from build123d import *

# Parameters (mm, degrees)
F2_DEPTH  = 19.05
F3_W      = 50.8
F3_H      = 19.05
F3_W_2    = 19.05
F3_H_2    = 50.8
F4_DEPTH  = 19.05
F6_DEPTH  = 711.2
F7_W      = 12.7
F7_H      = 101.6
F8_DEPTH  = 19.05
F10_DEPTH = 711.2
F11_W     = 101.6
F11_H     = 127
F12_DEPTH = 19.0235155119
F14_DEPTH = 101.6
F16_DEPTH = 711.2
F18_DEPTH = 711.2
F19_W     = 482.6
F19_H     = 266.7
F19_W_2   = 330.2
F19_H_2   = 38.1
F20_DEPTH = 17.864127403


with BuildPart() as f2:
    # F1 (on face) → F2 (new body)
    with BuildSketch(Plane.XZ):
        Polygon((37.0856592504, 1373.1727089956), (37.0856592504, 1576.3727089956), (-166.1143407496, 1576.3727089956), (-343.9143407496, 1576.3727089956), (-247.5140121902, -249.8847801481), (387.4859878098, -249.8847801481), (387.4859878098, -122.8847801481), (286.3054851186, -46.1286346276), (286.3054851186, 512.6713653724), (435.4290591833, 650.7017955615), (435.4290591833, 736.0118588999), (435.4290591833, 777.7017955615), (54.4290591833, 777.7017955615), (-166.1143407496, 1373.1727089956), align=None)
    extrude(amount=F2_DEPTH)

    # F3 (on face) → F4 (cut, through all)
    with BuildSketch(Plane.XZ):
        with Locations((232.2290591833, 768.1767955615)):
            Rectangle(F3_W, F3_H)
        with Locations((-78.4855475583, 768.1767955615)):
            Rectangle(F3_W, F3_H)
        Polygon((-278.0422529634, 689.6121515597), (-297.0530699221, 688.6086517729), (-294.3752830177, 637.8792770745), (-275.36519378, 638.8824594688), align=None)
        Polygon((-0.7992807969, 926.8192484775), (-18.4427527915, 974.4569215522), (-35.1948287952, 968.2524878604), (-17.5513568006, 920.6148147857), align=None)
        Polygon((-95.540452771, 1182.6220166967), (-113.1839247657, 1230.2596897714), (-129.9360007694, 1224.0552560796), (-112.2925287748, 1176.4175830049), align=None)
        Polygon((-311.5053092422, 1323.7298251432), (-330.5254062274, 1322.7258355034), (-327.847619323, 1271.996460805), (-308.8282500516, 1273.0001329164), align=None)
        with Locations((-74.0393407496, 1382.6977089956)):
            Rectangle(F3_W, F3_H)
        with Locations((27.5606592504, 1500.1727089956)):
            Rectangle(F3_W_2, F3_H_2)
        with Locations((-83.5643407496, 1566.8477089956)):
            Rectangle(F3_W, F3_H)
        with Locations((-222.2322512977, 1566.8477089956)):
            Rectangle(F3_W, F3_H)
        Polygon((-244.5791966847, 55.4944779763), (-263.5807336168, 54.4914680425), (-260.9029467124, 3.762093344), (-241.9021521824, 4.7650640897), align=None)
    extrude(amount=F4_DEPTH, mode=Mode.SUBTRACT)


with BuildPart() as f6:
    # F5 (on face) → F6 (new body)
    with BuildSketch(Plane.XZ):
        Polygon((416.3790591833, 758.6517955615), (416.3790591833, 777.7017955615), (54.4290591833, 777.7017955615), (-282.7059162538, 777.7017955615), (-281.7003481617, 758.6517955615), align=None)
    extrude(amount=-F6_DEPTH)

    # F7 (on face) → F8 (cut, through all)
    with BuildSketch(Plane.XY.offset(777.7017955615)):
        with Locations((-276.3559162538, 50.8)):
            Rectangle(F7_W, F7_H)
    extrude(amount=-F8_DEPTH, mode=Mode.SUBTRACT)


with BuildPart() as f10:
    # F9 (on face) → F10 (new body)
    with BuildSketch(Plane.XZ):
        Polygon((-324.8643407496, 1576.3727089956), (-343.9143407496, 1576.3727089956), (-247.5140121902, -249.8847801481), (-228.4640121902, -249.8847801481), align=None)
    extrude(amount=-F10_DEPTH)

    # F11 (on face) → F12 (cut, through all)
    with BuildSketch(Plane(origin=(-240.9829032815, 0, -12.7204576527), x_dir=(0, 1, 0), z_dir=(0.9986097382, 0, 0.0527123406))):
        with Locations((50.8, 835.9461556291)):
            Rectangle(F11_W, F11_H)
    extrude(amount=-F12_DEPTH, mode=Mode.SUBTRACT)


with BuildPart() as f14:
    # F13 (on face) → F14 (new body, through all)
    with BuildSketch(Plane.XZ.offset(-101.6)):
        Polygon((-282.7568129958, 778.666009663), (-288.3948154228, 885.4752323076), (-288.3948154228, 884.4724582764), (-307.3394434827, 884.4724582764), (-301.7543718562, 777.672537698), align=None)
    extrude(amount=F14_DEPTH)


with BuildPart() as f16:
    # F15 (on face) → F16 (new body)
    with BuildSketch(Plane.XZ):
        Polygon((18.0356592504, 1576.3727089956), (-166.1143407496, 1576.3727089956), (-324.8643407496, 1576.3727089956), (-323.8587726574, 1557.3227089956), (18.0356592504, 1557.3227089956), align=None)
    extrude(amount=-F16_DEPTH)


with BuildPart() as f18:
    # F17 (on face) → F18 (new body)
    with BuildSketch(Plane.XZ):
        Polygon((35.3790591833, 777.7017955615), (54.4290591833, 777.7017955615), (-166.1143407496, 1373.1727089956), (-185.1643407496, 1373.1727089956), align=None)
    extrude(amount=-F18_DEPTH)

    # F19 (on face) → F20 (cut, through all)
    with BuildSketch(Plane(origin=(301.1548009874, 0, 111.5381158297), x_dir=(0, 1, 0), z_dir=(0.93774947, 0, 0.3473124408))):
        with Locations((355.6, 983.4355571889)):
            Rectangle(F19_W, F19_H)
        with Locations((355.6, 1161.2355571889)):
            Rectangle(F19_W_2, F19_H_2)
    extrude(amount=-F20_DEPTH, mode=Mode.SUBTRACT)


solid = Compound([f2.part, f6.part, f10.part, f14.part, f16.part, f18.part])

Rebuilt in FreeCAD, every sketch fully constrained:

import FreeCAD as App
import Part
import Sketcher
Q = App.Units.Quantity

doc = App.newDocument("Part")
body = doc.addObject("PartDesign::Body", "Body")

# Sketch on XZ plane
sketch1 = body.newObject("Sketcher::SketchObject", "Sketch")
sketch1.AttachmentSupport = (doc.getObject("XZ_Plane"), [""])
sketch1.MapMode = "FlatFace"
sketch1.addGeometry(Part.LineSegment(App.Vector(37, 1373, 0), App.Vector(37, 1576, 0)), False)
sketch1.addGeometry(Part.LineSegment(App.Vector(37, 1576, 0), App.Vector(-344, 1576, 0)), False)
sketch1.addGeometry(Part.LineSegment(App.Vector(-344, 1576, 0), App.Vector(-248, -250, 0)), False)
sketch1.addGeometry(Part.LineSegment(App.Vector(-248, -250, 0), App.Vector(387, -250, 0)), False)
sketch1.addGeometry(Part.LineSegment(App.Vector(387, -250, 0), App.Vector(387, -123, 0)), False)
sketch1.addGeometry(Part.LineSegment(App.Vector(387, -123, 0), App.Vector(286, -46, 0)), False)
sketch1.addGeometry(Part.LineSegment(App.Vector(286, -46, 0), App.Vector(286, 513, 0)), False)
sketch1.addGeometry(Part.LineSegment(App.Vector(286, 513, 0), App.Vector(435, 651, 0)), False)
sketch1.addGeometry(Part.LineSegment(App.Vector(435, 651, 0), App.Vector(435, 778, 0)), False)
sketch1.addGeometry(Part.LineSegment(App.Vector(435, 778, 0), App.Vector(54, 778, 0)), False)
sketch1.addGeometry(Part.LineSegment(App.Vector(54, 778, 0), App.Vector(-166, 1373, 0)), False)
sketch1.addGeometry(Part.LineSegment(App.Vector(-166, 1373, 0), App.Vector(37, 1373, 0)), False)
sketch1.addConstraint(Sketcher.Constraint("Coincident", 0, 2, 1, 1))
sketch1.addConstraint(Sketcher.Constraint("Coincident", 1, 2, 2, 1))
sketch1.addConstraint(Sketcher.Constraint("Coincident", 2, 2, 3, 1))
sketch1.addConstraint(Sketcher.Constraint("Coincident", 3, 2, 4, 1))
sketch1.addConstraint(Sketcher.Constraint("Coincident", 4, 2, 5, 1))
sketch1.addConstraint(Sketcher.Constraint("Coincident", 5, 2, 6, 1))
sketch1.addConstraint(Sketcher.Constraint("Coincident", 6, 2, 7, 1))
sketch1.addConstraint(Sketcher.Constraint("Coincident", 7, 2, 8, 1))
sketch1.addConstraint(Sketcher.Constraint("Coincident", 8, 2, 9, 1))
sketch1.addConstraint(Sketcher.Constraint("Coincident", 9, 2, 10, 1))
sketch1.addConstraint(Sketcher.Constraint("Coincident", 10, 2, 11, 1))
sketch1.addConstraint(Sketcher.Constraint("Coincident", 11, 2, 0, 1))
sketch1.addConstraint(Sketcher.Constraint("Vertical", 0))
sketch1.addConstraint(Sketcher.Constraint("Horizontal", 1))
sketch1.addConstraint(Sketcher.Constraint("Horizontal", 3))
sketch1.addConstraint(Sketcher.Constraint("Vertical", 4))
sketch1.addConstraint(Sketcher.Constraint("Vertical", 6))
sketch1.addConstraint(Sketcher.Constraint("Vertical", 8))
sketch1.addConstraint(Sketcher.Constraint("Horizontal", 9))
sketch1.addConstraint(Sketcher.Constraint("Horizontal", 11))
sketch1.addConstraint(Sketcher.Constraint("Equal", 1, 9))
sketch1.addConstraint(Sketcher.Constraint("Equal", 11, 0))
sketch1.addConstraint(Sketcher.Constraint("Equal", 4, 8))
sketch1.addConstraint(Sketcher.Constraint("DistanceX", 1, 2, 1, 1, Q("15 in")))
sketch1.addConstraint(Sketcher.Constraint("DistanceX", 3, 1, 3, 2, Q("25 in")))
sketch1.addConstraint(Sketcher.Constraint("DistanceX", 11, 1, 11, 2, Q("8 in")))
sketch1.addConstraint(Sketcher.Constraint("DistanceY", 4, 1, 4, 2, Q("5 in")))
sketch1.addConstraint(Sketcher.Constraint("DistanceY", 6, 1, 6, 2, Q("22 in")))
sketch1.addConstraint(Sketcher.Constraint("Distance", 2, Q("72 in")))
sketch1.addConstraint(Sketcher.Constraint("Distance", 5, Q("5 in")))
sketch1.addConstraint(Sketcher.Constraint("Distance", 7, Q("8 in")))
sketch1.addConstraint(Sketcher.Constraint("Distance", 10, Q("25 in")))
sketch1.addConstraint(Sketcher.Constraint("DistanceX", 0, 2, 7, 2, 398.3434))
sketch1.addConstraint(Sketcher.Constraint("DistanceX", -1, 1, 0, 2, 37.085659))
sketch1.addConstraint(Sketcher.Constraint("DistanceY", -1, 1, 0, 2, 1576.372709))
sketch1.addConstraint(Sketcher.Constraint("DistanceY", 2, 2, -1, 1, 249.88478))
pad1 = body.newObject("PartDesign::Pad", "Pad")
pad1.Profile = sketch1
pad1.Length = Q("0.75 in")

# Sketch on XZ plane
sketch2 = body.newObject("Sketcher::SketchObject", "Sketch001")
sketch2.AttachmentSupport = (doc.getObject("XZ_Plane"), [""])
sketch2.MapMode = "FlatFace"
sketch2.addGeometry(Part.LineSegment(App.Vector(207, 778, 0), App.Vector(207, 759, 0)), False)
sketch2.addGeometry(Part.LineSegment(App.Vector(207, 759, 0), App.Vector(258, 759, 0)), False)
sketch2.addGeometry(Part.LineSegment(App.Vector(258, 759, 0), App.Vector(258, 778, 0)), False)
sketch2.addGeometry(Part.LineSegment(App.Vector(258, 778, 0), App.Vector(207, 778, 0)), False)
sketch2.addGeometry(Part.LineSegment(App.Vector(-104, 778, 0), App.Vector(-104, 759, 0)), False)
sketch2.addGeometry(Part.LineSegment(App.Vector(-104, 759, 0), App.Vector(-53, 759, 0)), False)
sketch2.addGeometry(Part.LineSegment(App.Vector(-53, 759, 0), App.Vector(-53, 778, 0)), False)
sketch2.addGeometry(Part.LineSegment(App.Vector(-53, 778, 0), App.Vector(-104, 778, 0)), False)
sketch2.addGeometry(Part.LineSegment(App.Vector(-278, 690, 0), App.Vector(-297, 689, 0)), False)
sketch2.addGeometry(Part.LineSegment(App.Vector(-297, 689, 0), App.Vector(-294, 638, 0)), False)
sketch2.addGeometry(Part.LineSegment(App.Vector(-294, 638, 0), App.Vector(-275, 639, 0)), False)
sketch2.addGeometry(Part.LineSegment(App.Vector(-275, 639, 0), App.Vector(-278, 690, 0)), False)
sketch2.addGeometry(Part.LineSegment(App.Vector(-1, 927, 0), App.Vector(-18, 974, 0)), False)
sketch2.addGeometry(Part.LineSegment(App.Vector(-18, 974, 0), App.Vector(-35, 968, 0)), False)
sketch2.addGeometry(Part.LineSegment(App.Vector(-35, 968, 0), App.Vector(-18, 921, 0)), False)
sketch2.addGeometry(Part.LineSegment(App.Vector(-18, 921, 0), App.Vector(-1, 927, 0)), False)
sketch2.addGeometry(Part.LineSegment(App.Vector(-96, 1183, 0), App.Vector(-113, 1230, 0)), False)
sketch2.addGeometry(Part.LineSegment(App.Vector(-113, 1230, 0), App.Vector(-130, 1224, 0)), False)
sketch2.addGeometry(Part.LineSegment(App.Vector(-130, 1224, 0), App.Vector(-112, 1176, 0)), False)
sketch2.addGeometry(Part.LineSegment(App.Vector(-112, 1176, 0), App.Vector(-96, 1183, 0)), False)
sketch2.addGeometry(Part.LineSegment(App.Vector(-312, 1324, 0), App.Vector(-331, 1323, 0)), False)
sketch2.addGeometry(Part.LineSegment(App.Vector(-331, 1323, 0), App.Vector(-328, 1272, 0)), False)
sketch2.addGeometry(Part.LineSegment(App.Vector(-328, 1272, 0), App.Vector(-309, 1273, 0)), False)
sketch2.addGeometry(Part.LineSegment(App.Vector(-309, 1273, 0), App.Vector(-312, 1324, 0)), False)
sketch2.addGeometry(Part.LineSegment(App.Vector(-99, 1392, 0), App.Vector(-99, 1373, 0)), False)
sketch2.addGeometry(Part.LineSegment(App.Vector(-99, 1373, 0), App.Vector(-49, 1373, 0)), False)
sketch2.addGeometry(Part.LineSegment(App.Vector(-49, 1373, 0), App.Vector(-49, 1392, 0)), False)
sketch2.addGeometry(Part.LineSegment(App.Vector(-49, 1392, 0), App.Vector(-99, 1392, 0)), False)
sketch2.addGeometry(Part.LineSegment(App.Vector(18, 1526, 0), App.Vector(18, 1475, 0)), False)
sketch2.addGeometry(Part.LineSegment(App.Vector(18, 1475, 0), App.Vector(37, 1475, 0)), False)
sketch2.addGeometry(Part.LineSegment(App.Vector(37, 1475, 0), App.Vector(37, 1526, 0)), False)
sketch2.addGeometry(Part.LineSegment(App.Vector(37, 1526, 0), App.Vector(18, 1526, 0)), False)
sketch2.addGeometry(Part.LineSegment(App.Vector(-109, 1576, 0), App.Vector(-109, 1557, 0)), False)
sketch2.addGeometry(Part.LineSegment(App.Vector(-109, 1557, 0), App.Vector(-58, 1557, 0)), False)
sketch2.addGeometry(Part.LineSegment(App.Vector(-58, 1557, 0), App.Vector(-58, 1576, 0)), False)
sketch2.addGeometry(Part.LineSegment(App.Vector(-58, 1576, 0), App.Vector(-109, 1576, 0)), False)
sketch2.addGeometry(Part.LineSegment(App.Vector(-248, 1576, 0), App.Vector(-248, 1557, 0)), False)
sketch2.addGeometry(Part.LineSegment(App.Vector(-248, 1557, 0), App.Vector(-197, 1557, 0)), False)
sketch2.addGeometry(Part.LineSegment(App.Vector(-197, 1557, 0), App.Vector(-197, 1576, 0)), False)
sketch2.addGeometry(Part.LineSegment(App.Vector(-197, 1576, 0), App.Vector(-248, 1576, 0)), False)
sketch2.addGeometry(Part.LineSegment(App.Vector(-245, 55, 0), App.Vector(-264, 54, 0)), False)
sketch2.addGeometry(Part.LineSegment(App.Vector(-264, 54, 0), App.Vector(-261, 4, 0)), False)
sketch2.addGeometry(Part.LineSegment(App.Vector(-261, 4, 0), App.Vector(-242, 5, 0)), False)
sketch2.addGeometry(Part.LineSegment(App.Vector(-242, 5, 0), App.Vector(-245, 55, 0)), False)
sketch2.addConstraint(Sketcher.Constraint("Coincident", 0, 2, 1, 1))
sketch2.addConstraint(Sketcher.Constraint("Coincident", 1, 2, 2, 1))
sketch2.addConstraint(Sketcher.Constraint("Coincident", 2, 2, 3, 1))
sketch2.addConstraint(Sketcher.Constraint("Coincident", 3, 2, 0, 1))
sketch2.addConstraint(Sketcher.Constraint("Coincident", 4, 2, 5, 1))
sketch2.addConstraint(Sketcher.Constraint("Coincident", 5, 2, 6, 1))
sketch2.addConstraint(Sketcher.Constraint("Coincident", 6, 2, 7, 1))
sketch2.addConstraint(Sketcher.Constraint("Coincident", 7, 2, 4, 1))
sketch2.addConstraint(Sketcher.Constraint("Coincident", 8, 2, 9, 1))
sketch2.addConstraint(Sketcher.Constraint("Coincident", 9, 2, 10, 1))
sketch2.addConstraint(Sketcher.Constraint("Coincident", 10, 2, 11, 1))
sketch2.addConstraint(Sketcher.Constraint("Coincident", 11, 2, 8, 1))
sketch2.addConstraint(Sketcher.Constraint("Coincident", 12, 2, 13, 1))
sketch2.addConstraint(Sketcher.Constraint("Coincident", 13, 2, 14, 1))
sketch2.addConstraint(Sketcher.Constraint("Coincident", 14, 2, 15, 1))
sketch2.addConstraint(Sketcher.Constraint("Coincident", 15, 2, 12, 1))
sketch2.addConstraint(Sketcher.Constraint("Coincident", 16, 2, 17, 1))
sketch2.addConstraint(Sketcher.Constraint("Coincident", 17, 2, 18, 1))
sketch2.addConstraint(Sketcher.Constraint("Coincident", 18, 2, 19, 1))
sketch2.addConstraint(Sketcher.Constraint("Coincident", 19, 2, 16, 1))
sketch2.addConstraint(Sketcher.Constraint("Coincident", 20, 2, 21, 1))
sketch2.addConstraint(Sketcher.Constraint("Coincident", 21, 2, 22, 1))
sketch2.addConstraint(Sketcher.Constraint("Coincident", 22, 2, 23, 1))
sketch2.addConstraint(Sketcher.Constraint("Coincident", 23, 2, 20, 1))
sketch2.addConstraint(Sketcher.Constraint("Coincident", 24, 2, 25, 1))
sketch2.addConstraint(Sketcher.Constraint("Coincident", 25, 2, 26, 1))
sketch2.addConstraint(Sketcher.Constraint("Coincident", 26, 2, 27, 1))
sketch2.addConstraint(Sketcher.Constraint("Coincident", 27, 2, 24, 1))
sketch2.addConstraint(Sketcher.Constraint("Coincident", 28, 2, 29, 1))
sketch2.addConstraint(Sketcher.Constraint("Coincident", 29, 2, 30, 1))
sketch2.addConstraint(Sketcher.Constraint("Coincident", 30, 2, 31, 1))
sketch2.addConstraint(Sketcher.Constraint("Coincident", 31, 2, 28, 1))
sketch2.addConstraint(Sketcher.Constraint("Coincident", 32, 2, 33, 1))
sketch2.addConstraint(Sketcher.Constraint("Coincident", 33, 2, 34, 1))
sketch2.addConstraint(Sketcher.Constraint("Coincident", 34, 2, 35, 1))
sketch2.addConstraint(Sketcher.Constraint("Coincident", 35, 2, 32, 1))
sketch2.addConstraint(Sketcher.Constraint("Coincident", 36, 2, 37, 1))
sketch2.addConstraint(Sketcher.Constraint("Coincident", 37, 2, 38, 1))
sketch2.addConstraint(Sketcher.Constraint("Coincident", 38, 2, 39, 1))
sketch2.addConstraint(Sketcher.Constraint("Coincident", 39, 2, 36, 1))
sketch2.addConstraint(Sketcher.Constraint("Coincident", 40, 2, 41, 1))
sketch2.addConstraint(Sketcher.Constraint("Coincident", 41, 2, 42, 1))
sketch2.addConstraint(Sketcher.Constraint("Coincident", 42, 2, 43, 1))
sketch2.addConstraint(Sketcher.Constraint("Coincident", 43, 2, 40, 1))
sketch2.addConstraint(Sketcher.Constraint("Vertical", 0))
sketch2.addConstraint(Sketcher.Constraint("Horizontal", 1))
sketch2.addConstraint(Sketcher.Constraint("Vertical", 2))
sketch2.addConstraint(Sketcher.Constraint("Horizontal", 3))
sketch2.addConstraint(Sketcher.Constraint("Vertical", 4))
sketch2.addConstraint(Sketcher.Constraint("Horizontal", 5))
sketch2.addConstraint(Sketcher.Constraint("Vertical", 6))
sketch2.addConstraint(Sketcher.Constraint("Horizontal", 7))
sketch2.addConstraint(Sketcher.Constraint("Vertical", 24))
sketch2.addConstraint(Sketcher.Constraint("Horizontal", 25))
sketch2.addConstraint(Sketcher.Constraint("Vertical", 26))
sketch2.addConstraint(Sketcher.Constraint("Horizontal", 27))
sketch2.addConstraint(Sketcher.Constraint("Vertical", 28))
sketch2.addConstraint(Sketcher.Constraint("Horizontal", 29))
sketch2.addConstraint(Sketcher.Constraint("Vertical", 30))
sketch2.addConstraint(Sketcher.Constraint("Horizontal", 31))
sketch2.addConstraint(Sketcher.Constraint("Vertical", 32))
sketch2.addConstraint(Sketcher.Constraint("Horizontal", 33))
sketch2.addConstraint(Sketcher.Constraint("Vertical", 34))
sketch2.addConstraint(Sketcher.Constraint("Horizontal", 35))
sketch2.addConstraint(Sketcher.Constraint("Vertical", 36))
sketch2.addConstraint(Sketcher.Constraint("Horizontal", 37))
sketch2.addConstraint(Sketcher.Constraint("Vertical", 38))
sketch2.addConstraint(Sketcher.Constraint("Horizontal", 39))
sketch2.addConstraint(Sketcher.Constraint("Perpendicular", 8, 9))
sketch2.addConstraint(Sketcher.Constraint("Perpendicular", 10, 11))
sketch2.addConstraint(Sketcher.Constraint("Perpendicular", 12, 13))
sketch2.addConstraint(Sketcher.Constraint("Perpendicular", 13, 14))
sketch2.addConstraint(Sketcher.Constraint("Perpendicular", 14, 15))
sketch2.addConstraint(Sketcher.Constraint("Perpendicular", 15, 16))
sketch2.addConstraint(Sketcher.Constraint("Perpendicular", 16, 17))
sketch2.addConstraint(Sketcher.Constraint("Perpendicular", 17, 18))
sketch2.addConstraint(Sketcher.Constraint("Perpendicular", 18, 19))
sketch2.addConstraint(Sketcher.Constraint("Perpendicular", 9, 20))
sketch2.addConstraint(Sketcher.Constraint("Perpendicular", 20, 21))
sketch2.addConstraint(Sketcher.Constraint("Perpendicular", 11, 22))
sketch2.addConstraint(Sketcher.Constraint("Perpendicular", 22, 23))
sketch2.addConstraint(Sketcher.Constraint("Perpendicular", 21, 40))
sketch2.addConstraint(Sketcher.Constraint("Perpendicular", 40, 41))
sketch2.addConstraint(Sketcher.Constraint("Perpendicular", 41, 42))
sketch2.addConstraint(Sketcher.Constraint("Parallel", 23, 43))
sketch2.addConstraint(Sketcher.Constraint("Horizontal", 1, 2, 4, 2))
sketch2.addConstraint(Sketcher.Constraint("Horizontal", 3, 2, 6, 2))
sketch2.addConstraint(Sketcher.Constraint("Horizontal", 33, 2, 36, 2))
sketch2.addConstraint(Sketcher.Constraint("Horizontal", 35, 2, 38, 2))
sketch2.addConstraint(Sketcher.Constraint("Equal", 3, 5))
sketch2.addConstraint(Sketcher.Constraint("Equal", 7, 25))
sketch2.addConstraint(Sketcher.Constraint("Equal", 27, 33))
sketch2.addConstraint(Sketcher.Constraint("Equal", 35, 37))
sketch2.addConstraint(Sketcher.Constraint("Equal", 31, 0))
sketch2.addConstraint(Sketcher.Constraint("Equal", 6, 24))
sketch2.addConstraint(Sketcher.Constraint("Equal", 39, 28))
sketch2.addConstraint(Sketcher.Constraint("Equal", 26, 32))
sketch2.addConstraint(Sketcher.Constraint("Equal", 9, 12))
sketch2.addConstraint(Sketcher.Constraint("Equal", 14, 16))
sketch2.addConstraint(Sketcher.Constraint("Equal", 15, 17))
sketch2.addConstraint(Sketcher.Constraint("Equal", 18, 21))
sketch2.addConstraint(Sketcher.Constraint("Equal", 21, 41))
sketch2.addConstraint(Sketcher.Constraint("DistanceX", 1, 1, 1, 2, Q("2 in")))
sketch2.addConstraint(Sketcher.Constraint("Distance", 9, Q("2 in")))
sketch2.addConstraint(Sketcher.Constraint("DistanceY", 25, 2, 28, 2, Q("4 in")))
sketch2.addConstraint(Sketcher.Constraint("DistanceX", 32, 2, 31, 2, Q("5 in")))
sketch2.addConstraint(Sketcher.Constraint("DistanceY", 31, 2, 34, 2, Q("2 in")))
sketch2.addConstraint(Sketcher.Constraint("DistanceX", 29, 1, 29, 2, Q("0.75 in")))
sketch2.addConstraint(Sketcher.Constraint("DistanceX", 26, 2, 28, 2, Q("2.625 in")))
sketch2.addConstraint(Sketcher.Constraint("DistanceX", 17, 2, -1, 1, 129.936001))
sketch2.addConstraint(Sketcher.Constraint("DistanceY", 8, 2, 11, 2, 1.0035))
sketch2.addConstraint(Sketcher.Constraint("DistanceY", 13, 2, 16, 2, 262.007202))
sketch2.addConstraint(Sketcher.Constraint("DistanceX", 18, 2, 13, 2, 77.0977))
sketch2.addConstraint(Sketcher.Constraint("DistanceX", 11, 2, 42, 2, 36.140101))
sketch2.addConstraint(Sketcher.Constraint("DistanceY", 43, 2, 9, 2, 582.384799))
sketch2.addConstraint(Sketcher.Constraint("Distance", 10, 19.03654))
sketch2.addConstraint(Sketcher.Constraint("Distance", 11, 50.800279))
sketch2.addConstraint(Sketcher.Constraint("Distance", 40, 19.027991))
sketch2.addConstraint(Sketcher.Constraint("DistanceX", -1, 1, 0, 2, 206.829059))
sketch2.addConstraint(Sketcher.Constraint("DistanceX", 8, 2, -1, 1, 297.05307))
sketch2.addConstraint(Sketcher.Constraint("DistanceY", -1, 1, 8, 2, 688.608652))
sketch2.addConstraint(Sketcher.Constraint("DistanceY", -1, 1, 12, 2, 974.456922))
sketch2.addConstraint(Sketcher.Constraint("DistanceX", 13, 2, -1, 1, 35.194829))
sketch2.addConstraint(Sketcher.Constraint("DistanceX", 15, 2, -1, 1, 0.799281))
sketch2.addConstraint(Sketcher.Constraint("DistanceX", 21, 2, -1, 1, 327.847619))
sketch2.addConstraint(Sketcher.Constraint("DistanceY", -1, 1, 21, 2, 1271.996461))
sketch2.addConstraint(Sketcher.Constraint("DistanceX", 22, 2, -1, 1, 308.82825))
sketch2.addConstraint(Sketcher.Constraint("DistanceX", 24, 2, -1, 1, 99.439341))
sketch2.addConstraint(Sketcher.Constraint("DistanceY", -1, 1, 24, 2, 1373.172709))
sketch2.addConstraint(Sketcher.Constraint("DistanceX", 36, 2, -1, 1, 247.632251))
sketch2.addConstraint(Sketcher.Constraint("DistanceY", 9, 2, 4, 2, 120.772518))
sketch2.addConstraint(Sketcher.Constraint("DistanceX", 6, 2, 13, 2, 17.890719))
pocket1 = body.newObject("PartDesign::Pocket", "Pocket")
pocket1.Profile = sketch2
pocket1.Type = "ThroughAll"
pocket1.Reversed = True
body2 = doc.addObject("PartDesign::Body", "Body001")

# Sketch on XZ plane
sketch3 = body2.newObject("Sketcher::SketchObject", "Sketch002")
sketch3.AttachmentSupport = (doc.getObject("XZ_Plane001"), [""])
sketch3.MapMode = "FlatFace"
sketch3.addGeometry(Part.LineSegment(App.Vector(416, 759, 0), App.Vector(416, 778, 0)), False)
sketch3.addGeometry(Part.LineSegment(App.Vector(416, 778, 0), App.Vector(-283, 778, 0)), False)
sketch3.addGeometry(Part.LineSegment(App.Vector(-283, 778, 0), App.Vector(-282, 759, 0)), False)
sketch3.addGeometry(Part.LineSegment(App.Vector(-282, 759, 0), App.Vector(416, 759, 0)), False)
sketch3.addConstraint(Sketcher.Constraint("Coincident", 0, 2, 1, 1))
sketch3.addConstraint(Sketcher.Constraint("Coincident", 1, 2, 2, 1))
sketch3.addConstraint(Sketcher.Constraint("Coincident", 2, 2, 3, 1))
sketch3.addConstraint(Sketcher.Constraint("Coincident", 3, 2, 0, 1))
sketch3.addConstraint(Sketcher.Constraint("Vertical", 0))
sketch3.addConstraint(Sketcher.Constraint("Horizontal", 1))
sketch3.addConstraint(Sketcher.Constraint("Horizontal", 3))
sketch3.addConstraint(Sketcher.Constraint("DistanceY", 0, 1, 0, 2, Q("0.75 in")))
sketch3.addConstraint(Sketcher.Constraint("Distance", 2, 19.076521))
sketch3.addConstraint(Sketcher.Constraint("DistanceX", 1, 2, 1, 1, 699.084975))
sketch3.addConstraint(Sketcher.Constraint("DistanceX", -1, 1, 0, 2, 416.379059))
sketch3.addConstraint(Sketcher.Constraint("DistanceY", -1, 1, 0, 2, 777.701796))
pad2 = body2.newObject("PartDesign::Pad", "Pad001")
pad2.Profile = sketch3
pad2.Length = Q("28 in")
pad2.Reversed = True

# Sketch on XY plane
sketch4 = body2.newObject("Sketcher::SketchObject", "Sketch003")
sketch4.AttachmentSupport = (doc.getObject("XY_Plane001"), [""])
sketch4.MapMode = "FlatFace"
sketch4.AttachmentOffset = App.Placement(App.Vector(0, 0, 777.701796), App.Rotation())
sketch4.addGeometry(Part.LineSegment(App.Vector(-283, 102, 0), App.Vector(-283, 0, 0)), False)
sketch4.addGeometry(Part.LineSegment(App.Vector(-283, 0, 0), App.Vector(-270, 0, 0)), False)
sketch4.addGeometry(Part.LineSegment(App.Vector(-270, 0, 0), App.Vector(-270, 102, 0)), False)
sketch4.addGeometry(Part.LineSegment(App.Vector(-270, 102, 0), App.Vector(-283, 102, 0)), False)
sketch4.addConstraint(Sketcher.Constraint("Coincident", 0, 2, 1, 1))
sketch4.addConstraint(Sketcher.Constraint("Coincident", 1, 2, 2, 1))
sketch4.addConstraint(Sketcher.Constraint("Coincident", 2, 2, 3, 1))
sketch4.addConstraint(Sketcher.Constraint("Coincident", 3, 2, 0, 1))
sketch4.addConstraint(Sketcher.Constraint("Vertical", 0))
sketch4.addConstraint(Sketcher.Constraint("Horizontal", 1))
sketch4.addConstraint(Sketcher.Constraint("Vertical", 2))
sketch4.addConstraint(Sketcher.Constraint("Horizontal", 3))
sketch4.addConstraint(Sketcher.Constraint("PointOnObject", 0, 2, -1))
sketch4.addConstraint(Sketcher.Constraint("DistanceY", 0, 2, 0, 1, Q("4 in")))
sketch4.addConstraint(Sketcher.Constraint("DistanceX", 1, 1, 1, 2, Q("0.5 in")))
sketch4.addConstraint(Sketcher.Constraint("DistanceX", 0, 2, -1, 1, 282.705916))
pocket2 = body2.newObject("PartDesign::Pocket", "Pocket001")
pocket2.Profile = sketch4
pocket2.Type = "ThroughAll"
body3 = doc.addObject("PartDesign::Body", "Body002")

# Sketch on XZ plane
sketch5 = body3.newObject("Sketcher::SketchObject", "Sketch004")
sketch5.AttachmentSupport = (doc.getObject("XZ_Plane002"), [""])
sketch5.MapMode = "FlatFace"
sketch5.addGeometry(Part.LineSegment(App.Vector(-325, 1576, 0), App.Vector(-344, 1576, 0)), False)
sketch5.addGeometry(Part.LineSegment(App.Vector(-344, 1576, 0), App.Vector(-248, -250, 0)), False)
sketch5.addGeometry(Part.LineSegment(App.Vector(-248, -250, 0), App.Vector(-228, -250, 0)), False)
sketch5.addGeometry(Part.LineSegment(App.Vector(-228, -250, 0), App.Vector(-325, 1576, 0)), False)
sketch5.addConstraint(Sketcher.Constraint("Coincident", 0, 2, 1, 1))
sketch5.addConstraint(Sketcher.Constraint("Coincident", 1, 2, 2, 1))
sketch5.addConstraint(Sketcher.Constraint("Coincident", 2, 2, 3, 1))
sketch5.addConstraint(Sketcher.Constraint("Coincident", 3, 2, 0, 1))
sketch5.addConstraint(Sketcher.Constraint("Horizontal", 0))
sketch5.addConstraint(Sketcher.Constraint("Horizontal", 2))
sketch5.addConstraint(Sketcher.Constraint("Parallel", 1, 3))
sketch5.addConstraint(Sketcher.Constraint("Distance", 1, Q("72 in")))
sketch5.addConstraint(Sketcher.Constraint("DistanceX", 0, 2, 0, 1, Q("0.75 in")))
sketch5.addConstraint(Sketcher.Constraint("DistanceX", 0, 2, -1, 1, 343.914341))
sketch5.addConstraint(Sketcher.Constraint("DistanceY", -1, 1, 0, 2, 1576.372709))
sketch5.addConstraint(Sketcher.Constraint("DistanceY", 1, 2, -1, 1, 249.88478))
pad3 = body3.newObject("PartDesign::Pad", "Pad002")
pad3.Profile = sketch5
pad3.Length = Q("28 in")
pad3.Reversed = True

# Sketch on an angled plane
sketch6 = body3.newObject("Sketcher::SketchObject", "Sketch005")
sketch6.Placement = App.Placement(App.Vector(-240.982903, 0, -12.720458), App.Rotation(App.Vector(0, 1, 0), App.Vector(-0.052712341, 0, 0.998609738), App.Vector(0.998609738, 0, 0.052712341), "ZXY"))
sketch6.addGeometry(Part.LineSegment(App.Vector(0, 899, 0), App.Vector(0, 772, 0)), False)
sketch6.addGeometry(Part.LineSegment(App.Vector(0, 772, 0), App.Vector(102, 772, 0)), False)
sketch6.addGeometry(Part.LineSegment(App.Vector(102, 772, 0), App.Vector(102, 899, 0)), False)
sketch6.addGeometry(Part.LineSegment(App.Vector(102, 899, 0), App.Vector(0, 899, 0)), False)
sketch6.addConstraint(Sketcher.Constraint("Coincident", 0, 2, 1, 1))
sketch6.addConstraint(Sketcher.Constraint("Coincident", 1, 2, 2, 1))
sketch6.addConstraint(Sketcher.Constraint("Coincident", 2, 2, 3, 1))
sketch6.addConstraint(Sketcher.Constraint("Coincident", 3, 2, 0, 1))
sketch6.addConstraint(Sketcher.Constraint("Vertical", 0))
sketch6.addConstraint(Sketcher.Constraint("Horizontal", 1))
sketch6.addConstraint(Sketcher.Constraint("Vertical", 2))
sketch6.addConstraint(Sketcher.Constraint("Horizontal", 3))
sketch6.addConstraint(Sketcher.Constraint("PointOnObject", 0, 2, -2))
sketch6.addConstraint(Sketcher.Constraint("DistanceX", 1, 1, 1, 2, Q("4 in")))
sketch6.addConstraint(Sketcher.Constraint("DistanceY", 0, 2, 0, 1, Q("5 in")))
sketch6.addConstraint(Sketcher.Constraint("DistanceY", -1, 1, 0, 2, 772.446155))
pocket3 = body3.newObject("PartDesign::Pocket", "Pocket002")
pocket3.Profile = sketch6
pocket3.Type = "ThroughAll"
body4 = doc.addObject("PartDesign::Body", "Body003")

# Sketch on XZ plane
sketch7 = body4.newObject("Sketcher::SketchObject", "Sketch006")
sketch7.AttachmentSupport = (doc.getObject("XZ_Plane003"), [""])
sketch7.MapMode = "FlatFace"
sketch7.AttachmentOffset = App.Placement(App.Vector(0, 0, -4 * 25.4), App.Rotation())
sketch7.addGeometry(Part.LineSegment(App.Vector(-282.8, 778.7, 0), App.Vector(-288.4, 885.5, 0)), False)
sketch7.addGeometry(Part.LineSegment(App.Vector(-288.4, 885.5, 0), App.Vector(-288.4, 884.5, 0)), False)
sketch7.addGeometry(Part.LineSegment(App.Vector(-288.4, 884.5, 0), App.Vector(-307.3, 884.5, 0)), False)
sketch7.addGeometry(Part.LineSegment(App.Vector(-307.3, 884.5, 0), App.Vector(-301.8, 777.7, 0)), False)
sketch7.addGeometry(Part.LineSegment(App.Vector(-301.8, 777.7, 0), App.Vector(-282.8, 778.7, 0)), False)
sketch7.addConstraint(Sketcher.Constraint("Coincident", 0, 2, 1, 1))
sketch7.addConstraint(Sketcher.Constraint("Coincident", 1, 2, 2, 1))
sketch7.addConstraint(Sketcher.Constraint("Coincident", 2, 2, 3, 1))
sketch7.addConstraint(Sketcher.Constraint("Coincident", 3, 2, 4, 1))
sketch7.addConstraint(Sketcher.Constraint("Coincident", 4, 2, 0, 1))
sketch7.addConstraint(Sketcher.Constraint("Vertical", 1))
sketch7.addConstraint(Sketcher.Constraint("Horizontal", 2))
sketch7.addConstraint(Sketcher.Constraint("Perpendicular", 3, 4))
sketch7.addConstraint(Sketcher.Constraint("DistanceX", 2, 2, 2, 1, 18.944628))
sketch7.addConstraint(Sketcher.Constraint("DistanceY", 1, 2, 1, 1, 1.002774))
sketch7.addConstraint(Sketcher.Constraint("DistanceY", -1, 1, 1, 2, 884.472458))
sketch7.addConstraint(Sketcher.Constraint("DistanceX", 3, 2, -1, 1, 301.754372))
sketch7.addConstraint(Sketcher.Constraint("DistanceY", -1, 1, 4, 2, 778.66601))
sketch7.addConstraint(Sketcher.Constraint("DistanceX", 2, 2, 3, 2, 5.585072))
sketch7.addConstraint(Sketcher.Constraint("DistanceY", 3, 2, 2, 2, 106.799921))
pad4 = body4.newObject("PartDesign::Pad", "Pad003")
pad4.Profile = sketch7
pad4.Length = Q("4 in")
body5 = doc.addObject("PartDesign::Body", "Body004")

# Sketch on XZ plane
sketch8 = body5.newObject("Sketcher::SketchObject", "Sketch007")
sketch8.AttachmentSupport = (doc.getObject("XZ_Plane004"), [""])
sketch8.MapMode = "FlatFace"
sketch8.addGeometry(Part.LineSegment(App.Vector(18, 1576, 0), App.Vector(-325, 1576, 0)), False)
sketch8.addGeometry(Part.LineSegment(App.Vector(-325, 1576, 0), App.Vector(-324, 1557, 0)), False)
sketch8.addGeometry(Part.LineSegment(App.Vector(-324, 1557, 0), App.Vector(18, 1557, 0)), False)
sketch8.addGeometry(Part.LineSegment(App.Vector(18, 1557, 0), App.Vector(18, 1576, 0)), False)
sketch8.addConstraint(Sketcher.Constraint("Coincident", 0, 2, 1, 1))
sketch8.addConstraint(Sketcher.Constraint("Coincident", 1, 2, 2, 1))
sketch8.addConstraint(Sketcher.Constraint("Coincident", 2, 2, 3, 1))
sketch8.addConstraint(Sketcher.Constraint("Coincident", 3, 2, 0, 1))
sketch8.addConstraint(Sketcher.Constraint("Horizontal", 0))
sketch8.addConstraint(Sketcher.Constraint("Horizontal", 2))
sketch8.addConstraint(Sketcher.Constraint("Vertical", 3))
sketch8.addConstraint(Sketcher.Constraint("DistanceX", 0, 2, 0, 1, Q("13.5 in")))
sketch8.addConstraint(Sketcher.Constraint("DistanceY", 3, 1, 3, 2, Q("0.75 in")))
sketch8.addConstraint(Sketcher.Constraint("DistanceX", 2, 1, 2, 2, 341.894432))
sketch8.addConstraint(Sketcher.Constraint("DistanceX", 0, 2, -1, 1, 324.864341))
sketch8.addConstraint(Sketcher.Constraint("DistanceY", -1, 1, 0, 2, 1576.372709))
pad5 = body5.newObject("PartDesign::Pad", "Pad004")
pad5.Profile = sketch8
pad5.Length = Q("28 in")
pad5.Reversed = True
body6 = doc.addObject("PartDesign::Body", "Body005")

# Sketch on XZ plane
sketch9 = body6.newObject("Sketcher::SketchObject", "Sketch008")
sketch9.AttachmentSupport = (doc.getObject("XZ_Plane005"), [""])
sketch9.MapMode = "FlatFace"
sketch9.addGeometry(Part.LineSegment(App.Vector(35, 778, 0), App.Vector(54, 778, 0)), False)
sketch9.addGeometry(Part.LineSegment(App.Vector(54, 778, 0), App.Vector(-166, 1373, 0)), False)
sketch9.addGeometry(Part.LineSegment(App.Vector(-166, 1373, 0), App.Vector(-185, 1373, 0)), False)
sketch9.addGeometry(Part.LineSegment(App.Vector(-185, 1373, 0), App.Vector(35, 778, 0)), False)
sketch9.addConstraint(Sketcher.Constraint("Coincident", 0, 2, 1, 1))
sketch9.addConstraint(Sketcher.Constraint("Coincident", 1, 2, 2, 1))
sketch9.addConstraint(Sketcher.Constraint("Coincident", 2, 2, 3, 1))
sketch9.addConstraint(Sketcher.Constraint("Coincident", 3, 2, 0, 1))
sketch9.addConstraint(Sketcher.Constraint("Horizontal", 0))
sketch9.addConstraint(Sketcher.Constraint("Horizontal", 2))
sketch9.addConstraint(Sketcher.Constraint("Parallel", 1, 3))
sketch9.addConstraint(Sketcher.Constraint("Distance", 1, Q("25 in")))
sketch9.addConstraint(Sketcher.Constraint("DistanceX", 0, 1, 0, 2, Q("0.75 in")))
sketch9.addConstraint(Sketcher.Constraint("DistanceX", 1, 2, 0, 2, 220.5434))
sketch9.addConstraint(Sketcher.Constraint("DistanceX", -1, 1, 0, 2, 54.429059))
sketch9.addConstraint(Sketcher.Constraint("DistanceY", -1, 1, 1, 2, 1373.172709))
pad6 = body6.newObject("PartDesign::Pad", "Pad005")
pad6.Profile = sketch9
pad6.Length = Q("28 in")
pad6.Reversed = True

# Sketch on an angled plane
sketch10 = body6.newObject("Sketcher::SketchObject", "Sketch009")
sketch10.Placement = App.Placement(App.Vector(301.154801, 0, 111.538116), App.Rotation(App.Vector(0, 1, 0), App.Vector(-0.347312441, 0, 0.93774947), App.Vector(0.93774947, 0, 0.347312441), "ZXY"))
sketch10.addGeometry(Part.LineSegment(App.Vector(114, 1117, 0), App.Vector(114, 850, 0)), False)
sketch10.addGeometry(Part.LineSegment(App.Vector(114, 850, 0), App.Vector(597, 850, 0)), False)
sketch10.addGeometry(Part.LineSegment(App.Vector(597, 850, 0), App.Vector(597, 1117, 0)), False)
sketch10.addGeometry(Part.LineSegment(App.Vector(597, 1117, 0), App.Vector(114, 1117, 0)), False)
sketch10.addGeometry(Part.LineSegment(App.Vector(190, 1180, 0), App.Vector(190, 1142, 0)), False)
sketch10.addGeometry(Part.LineSegment(App.Vector(190, 1142, 0), App.Vector(521, 1142, 0)), False)
sketch10.addGeometry(Part.LineSegment(App.Vector(521, 1142, 0), App.Vector(521, 1180, 0)), False)
sketch10.addGeometry(Part.LineSegment(App.Vector(521, 1180, 0), App.Vector(190, 1180, 0)), False)
sketch10.addConstraint(Sketcher.Constraint("Coincident", 0, 2, 1, 1))
sketch10.addConstraint(Sketcher.Constraint("Coincident", 1, 2, 2, 1))
sketch10.addConstraint(Sketcher.Constraint("Coincident", 2, 2, 3, 1))
sketch10.addConstraint(Sketcher.Constraint("Coincident", 3, 2, 0, 1))
sketch10.addConstraint(Sketcher.Constraint("Coincident", 4, 2, 5, 1))
sketch10.addConstraint(Sketcher.Constraint("Coincident", 5, 2, 6, 1))
sketch10.addConstraint(Sketcher.Constraint("Coincident", 6, 2, 7, 1))
sketch10.addConstraint(Sketcher.Constraint("Coincident", 7, 2, 4, 1))
sketch10.addConstraint(Sketcher.Constraint("Vertical", 0))
sketch10.addConstraint(Sketcher.Constraint("Horizontal", 1))
sketch10.addConstraint(Sketcher.Constraint("Vertical", 2))
sketch10.addConstraint(Sketcher.Constraint("Horizontal", 3))
sketch10.addConstraint(Sketcher.Constraint("Vertical", 4))
sketch10.addConstraint(Sketcher.Constraint("Horizontal", 5))
sketch10.addConstraint(Sketcher.Constraint("Vertical", 6))
sketch10.addConstraint(Sketcher.Constraint("Horizontal", 7))
sketch10.addConstraint(Sketcher.Constraint("DistanceX", 1, 1, 1, 2, Q("19 in")))
sketch10.addConstraint(Sketcher.Constraint("DistanceX", 5, 1, 5, 2, Q("13 in")))
sketch10.addConstraint(Sketcher.Constraint("DistanceY", 0, 2, 0, 1, Q("10.5 in")))
sketch10.addConstraint(Sketcher.Constraint("DistanceY", 4, 2, 4, 1, Q("1.5 in")))
sketch10.addConstraint(Sketcher.Constraint("DistanceX", 3, 2, 4, 2, Q("3 in")))
sketch10.addConstraint(Sketcher.Constraint("DistanceY", 3, 2, 4, 2, Q("1 in")))
sketch10.addConstraint(Sketcher.Constraint("DistanceX", -1, 1, 0, 2, Q("4.5 in")))
sketch10.addConstraint(Sketcher.Constraint("DistanceY", -1, 1, 0, 2, 850.085557))
pocket4 = body6.newObject("PartDesign::Pocket", "Pocket003")
pocket4.Profile = sketch10
pocket4.Type = "ThroughAll"

doc.recompute()
